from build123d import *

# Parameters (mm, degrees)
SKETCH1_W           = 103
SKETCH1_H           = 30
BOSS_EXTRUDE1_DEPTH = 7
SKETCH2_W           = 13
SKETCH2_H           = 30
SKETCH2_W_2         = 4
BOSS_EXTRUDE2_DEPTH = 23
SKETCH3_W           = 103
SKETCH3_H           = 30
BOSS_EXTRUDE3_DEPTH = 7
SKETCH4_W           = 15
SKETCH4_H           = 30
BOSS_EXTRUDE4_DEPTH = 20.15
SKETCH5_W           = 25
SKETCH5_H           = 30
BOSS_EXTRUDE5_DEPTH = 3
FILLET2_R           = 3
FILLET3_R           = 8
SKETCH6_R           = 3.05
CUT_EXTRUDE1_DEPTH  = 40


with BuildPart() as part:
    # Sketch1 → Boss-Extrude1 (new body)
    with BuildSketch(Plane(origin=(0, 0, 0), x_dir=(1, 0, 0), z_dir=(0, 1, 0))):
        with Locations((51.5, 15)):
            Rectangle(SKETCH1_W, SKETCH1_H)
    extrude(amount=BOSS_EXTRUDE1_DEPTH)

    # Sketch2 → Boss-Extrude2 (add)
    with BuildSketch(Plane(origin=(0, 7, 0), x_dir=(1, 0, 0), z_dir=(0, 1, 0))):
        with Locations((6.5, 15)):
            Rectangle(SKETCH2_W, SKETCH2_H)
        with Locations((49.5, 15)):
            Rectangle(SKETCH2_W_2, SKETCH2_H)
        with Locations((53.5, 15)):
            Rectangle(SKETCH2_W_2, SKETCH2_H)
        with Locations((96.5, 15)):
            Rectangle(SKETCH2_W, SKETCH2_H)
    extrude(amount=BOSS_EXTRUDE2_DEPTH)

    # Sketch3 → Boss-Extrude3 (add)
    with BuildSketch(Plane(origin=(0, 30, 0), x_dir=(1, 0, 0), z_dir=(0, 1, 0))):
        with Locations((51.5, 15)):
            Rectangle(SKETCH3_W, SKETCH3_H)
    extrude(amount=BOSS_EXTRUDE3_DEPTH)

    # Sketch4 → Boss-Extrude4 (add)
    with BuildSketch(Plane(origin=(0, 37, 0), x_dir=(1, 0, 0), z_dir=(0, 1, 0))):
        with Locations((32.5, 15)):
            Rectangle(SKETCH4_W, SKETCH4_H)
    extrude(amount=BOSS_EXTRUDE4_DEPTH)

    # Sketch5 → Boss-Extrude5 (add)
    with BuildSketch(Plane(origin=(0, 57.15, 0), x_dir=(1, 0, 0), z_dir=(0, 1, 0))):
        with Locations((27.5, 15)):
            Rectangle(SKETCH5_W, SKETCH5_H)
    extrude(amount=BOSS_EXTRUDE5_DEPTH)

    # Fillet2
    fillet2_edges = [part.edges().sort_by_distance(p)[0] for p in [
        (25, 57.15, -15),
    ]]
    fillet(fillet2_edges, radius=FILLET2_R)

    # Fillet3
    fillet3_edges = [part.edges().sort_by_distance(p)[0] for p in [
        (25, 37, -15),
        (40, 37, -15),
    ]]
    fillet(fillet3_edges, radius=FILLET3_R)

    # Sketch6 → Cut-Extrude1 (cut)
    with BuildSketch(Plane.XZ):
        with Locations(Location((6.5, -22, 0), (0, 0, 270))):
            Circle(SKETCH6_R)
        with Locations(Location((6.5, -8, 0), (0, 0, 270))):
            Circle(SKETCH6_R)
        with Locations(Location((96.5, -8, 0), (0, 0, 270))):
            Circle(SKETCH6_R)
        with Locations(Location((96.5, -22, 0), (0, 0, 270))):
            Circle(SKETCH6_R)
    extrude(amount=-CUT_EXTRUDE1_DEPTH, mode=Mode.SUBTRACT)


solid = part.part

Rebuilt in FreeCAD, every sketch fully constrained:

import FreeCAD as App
import Part
import Sketcher

V = App.Vector
Q = App.Units.Quantity


def edges_at(feature, points):
    """Names of the edges that pass closest to the given points."""
    edges = feature.Shape.Edges
    near = lambda p: min(range(len(edges)), key=lambda i: edges[i].distToShape(Part.Vertex(*p))[0])
    return sorted({f"Edge{near(p) + 1}" for p in points})


def add_polygon(sketch, points):
    """Adds a closed chain of lines whose ends are joined by coincident constraints."""
    first, n = sketch.GeometryCount, len(points)
    for a, b in zip(points, points[1:] + points[:1]):
        sketch.addGeometry(Part.LineSegment(App.Vector(*a, 0), App.Vector(*b, 0)), False)
    for i in range(n):
        sketch.addConstraint(Sketcher.Constraint("Coincident", first + i, 2, first + (i + 1) % n, 1))

doc = App.newDocument("Part")
body = doc.addObject("PartDesign::Body", "Body")

# Sketch on XZ plane
sketch1 = body.newObject("Sketcher::SketchObject", "Sketch")
sketch1.AttachmentSupport = (doc.getObject("XZ_Plane"), [""])
sketch1.MapMode = "FlatFace"
add_polygon(sketch1, [(0, -30), (0, 0), (103, 0), (103, -30)])  # lines 0-3
sketch1.addConstraint([
    Sketcher.Constraint("Vertical", 0),
    Sketcher.Constraint("Horizontal", 1),
    Sketcher.Constraint("Vertical", 2),
    Sketcher.Constraint("Horizontal", 3),
    Sketcher.Constraint("Coincident", 0, 2, -1, 1),
    Sketcher.Constraint("DistanceX", 1, 1, 1, 2, Q("103 mm")),
    Sketcher.Constraint("DistanceY", 0, 1, 0, 2, Q("30 mm")),
])
pad1 = body.newObject("PartDesign::Pad", "Pad")
pad1.Profile = sketch1
pad1.Length = 7
pad1.Reversed = True

# Sketch on XZ plane
sketch2 = body.newObject("Sketcher::SketchObject", "Sketch001")
sketch2.AttachmentSupport = (doc.getObject("XZ_Plane"), [""])
sketch2.MapMode = "FlatFace"
sketch2.AttachmentOffset = App.Placement(V(0, 0, -7), App.Rotation())
add_polygon(sketch2, [(0, -30), (0, 0), (13, 0), (13, -30)])  # lines 0-3
add_polygon(sketch2, [(48, -30), (48, 0), (56, 0), (56, -30)])  # lines 4-7
add_polygon(sketch2, [(90, -30), (90, 0), (103, 0), (103, -30)])  # lines 8-11
sketch2.addConstraint([
    Sketcher.Constraint("Vertical", 0),
    Sketcher.Constraint("Horizontal", 1),
    Sketcher.Constraint("Vertical", 2),
    Sketcher.Constraint("Horizontal", 3),
    Sketcher.Constraint("Vertical", 4),
    Sketcher.Constraint("Horizontal", 5),
    Sketcher.Constraint("Vertical", 6),
    Sketcher.Constraint("Horizontal", 7),
    Sketcher.Constraint("Vertical", 8),
    Sketcher.Constraint("Horizontal", 9),
    Sketcher.Constraint("Vertical", 10),
    Sketcher.Constraint("Horizontal", 11),
    Sketcher.Constraint("Coincident", 0, 2, -1, 1),
    Sketcher.Constraint("PointOnObject", 4, 2, -1),
    Sketcher.Constraint("PointOnObject", 8, 2, -1),
    Sketcher.Constraint("Horizontal", 3, 2, 6, 2),
    Sketcher.Constraint("Horizontal", 7, 2, 10, 2),
    Sketcher.Constraint("Equal", 3, 9),
    Sketcher.Constraint("DistanceX", 1, 1, 1, 2, Q("13 mm")),
    Sketcher.Constraint("DistanceX", 5, 1, 5, 2, Q("8 mm")),
    Sketcher.Constraint("DistanceY", 0, 1, 0, 2, Q("30 mm")),
    Sketcher.Constraint("DistanceX", -1, 1, 8, 2, Q("90 mm")),
    Sketcher.Constraint("DistanceX", -1, 1, 4, 2, Q("47.5 mm")),
])
pad2 = body.newObject("PartDesign::Pad", "Pad001")
pad2.Profile = sketch2
pad2.Length = 23
pad2.Reversed = True

# Sketch on XZ plane
sketch3 = body.newObject("Sketcher::SketchObject", "Sketch002")
sketch3.AttachmentSupport = (doc.getObject("XZ_Plane"), [""])
sketch3.MapMode = "FlatFace"
sketch3.AttachmentOffset = App.Placement(V(0, 0, -30), App.Rotation())
add_polygon(sketch3, [(0, -30), (0, 0), (103, 0), (103, -30)])  # lines 0-3
sketch3.addConstraint([
    Sketcher.Constraint("Vertical", 0),
    Sketcher.Constraint("Horizontal", 1),
    Sketcher.Constraint("Vertical", 2),
    Sketcher.Constraint("Horizontal", 3),
    Sketcher.Constraint("Coincident", 0, 2, -1, 1),
    Sketcher.Constraint("DistanceX", 1, 1, 1, 2, Q("103 mm")),
    Sketcher.Constraint("DistanceY", 0, 1, 0, 2, Q("30 mm")),
])
pad3 = body.newObject("PartDesign::Pad", "Pad002")
pad3.Profile = sketch3
pad3.Length = 7
pad3.Reversed = True

# Sketch on XZ plane
sketch4 = body.newObject("Sketcher::SketchObject", "Sketch003")
sketch4.AttachmentSupport = (doc.getObject("XZ_Plane"), [""])
sketch4.MapMode = "FlatFace"
sketch4.AttachmentOffset = App.Placement(V(0, 0, -37), App.Rotation())
add_polygon(sketch4, [(25, -30), (25, 0), (40, 0), (40, -30)])  # lines 0-3
sketch4.addConstraint([
    Sketcher.Constraint("Vertical", 0),
    Sketcher.Constraint("Horizontal", 1),
    Sketcher.Constraint("Vertical", 2),
    Sketcher.Constraint("Horizontal", 3),
    Sketcher.Constraint("PointOnObject", 0, 2, -1),
    Sketcher.Constraint("DistanceX", 1, 1, 1, 2, Q("15 mm")),
    Sketcher.Constraint("DistanceY", 0, 1, 0, 2, Q("30 mm")),
    Sketcher.Constraint("DistanceX", -1, 1, 0, 2, Q("25 mm")),
])
pad4 = body.newObject("PartDesign::Pad", "Pad003")
pad4.Profile = sketch4
pad4.Length = 20.15
pad4.Reversed = True

# Sketch on XZ plane
sketch5 = body.newObject("Sketcher::SketchObject", "Sketch004")
sketch5.AttachmentSupport = (doc.getObject("XZ_Plane"), [""])
sketch5.MapMode = "FlatFace"
sketch5.AttachmentOffset = App.Placement(V(0, 0, -57.15), App.Rotation())
add_polygon(sketch5, [(15, -30), (15, 0), (40, 0), (40, -30)])  # lines 0-3
sketch5.addConstraint([
    Sketcher.Constraint("Vertical", 0),
    Sketcher.Constraint("Horizontal", 1),
    Sketcher.Constraint("Vertical", 2),
    Sketcher.Constraint("Horizontal", 3),
    Sketcher.Constraint("PointOnObject", 0, 2, -1),
    Sketcher.Constraint("DistanceX", 1, 1, 1, 2, Q("25 mm")),
    Sketcher.Constraint("DistanceY", 0, 1, 0, 2, Q("30 mm")),
    Sketcher.Constraint("DistanceX", -1, 1, 0, 2, Q("15 mm")),
])
pad5 = body.newObject("PartDesign::Pad", "Pad004")
pad5.Profile = sketch5
pad5.Length = 3
pad5.Reversed = True
doc.recompute()

fillet = body.newObject("PartDesign::Fillet", "Fillet")
fillet.Base = (pad5, edges_at(pad5, [(25, 57.15, -15)]))
fillet.Radius = 3
doc.recompute()

fillet2 = body.newObject("PartDesign::Fillet", "Fillet001")
fillet2.Base = (fillet, edges_at(fillet, [(25, 37, -15), (40, 37, -15)]))
fillet2.Radius = 8

# Sketch on XZ plane
sketch6 = body.newObject("Sketcher::SketchObject", "Sketch005")
sketch6.AttachmentSupport = (doc.getObject("XZ_Plane"), [""])
sketch6.MapMode = "FlatFace"
sketch6.addGeometry([
    Part.Circle(V(6.5, -22, 0), V(0, 0, 1), 3),
    Part.Circle(V(6.5, -8, 0), V(0, 0, 1), 3),
    Part.Circle(V(96.5, -8, 0), V(0, 0, 1), 3),
    Part.Circle(V(96.5, -22, 0), V(0, 0, 1), 3),
], False)
sketch6.addConstraint([
    Sketcher.Constraint("Equal", 0, 1),
    Sketcher.Constraint("Equal", 1, 2),
    Sketcher.Constraint("Equal", 2, 3),
    Sketcher.Constraint("Horizontal", 1, 3, 2, 3),
    Sketcher.Constraint("Horizontal", 0, 3, 3, 3),
    Sketcher.Constraint("Vertical", 0, 3, 1, 3),
    Sketcher.Constraint("Vertical", 2, 3, 3, 3),
    Sketcher.Constraint("Diameter", 0, Q("6.1 mm")),
    Sketcher.Constraint("DistanceY", 0, 3, -1, 1, Q("22 mm")),
    Sketcher.Constraint("DistanceY", 1, 3, -1, 1, Q("8 mm")),
    Sketcher.Constraint("DistanceX", 1, 3, 2, 3, Q("90 mm")),
    Sketcher.Constraint("DistanceX", -1, 1, 0, 3, Q("6.5 mm")),
])
pocket1 = body.newObject("PartDesign::Pocket", "Pocket")
pocket1.Profile = sketch6
pocket1.Length = 40

doc.recompute()
